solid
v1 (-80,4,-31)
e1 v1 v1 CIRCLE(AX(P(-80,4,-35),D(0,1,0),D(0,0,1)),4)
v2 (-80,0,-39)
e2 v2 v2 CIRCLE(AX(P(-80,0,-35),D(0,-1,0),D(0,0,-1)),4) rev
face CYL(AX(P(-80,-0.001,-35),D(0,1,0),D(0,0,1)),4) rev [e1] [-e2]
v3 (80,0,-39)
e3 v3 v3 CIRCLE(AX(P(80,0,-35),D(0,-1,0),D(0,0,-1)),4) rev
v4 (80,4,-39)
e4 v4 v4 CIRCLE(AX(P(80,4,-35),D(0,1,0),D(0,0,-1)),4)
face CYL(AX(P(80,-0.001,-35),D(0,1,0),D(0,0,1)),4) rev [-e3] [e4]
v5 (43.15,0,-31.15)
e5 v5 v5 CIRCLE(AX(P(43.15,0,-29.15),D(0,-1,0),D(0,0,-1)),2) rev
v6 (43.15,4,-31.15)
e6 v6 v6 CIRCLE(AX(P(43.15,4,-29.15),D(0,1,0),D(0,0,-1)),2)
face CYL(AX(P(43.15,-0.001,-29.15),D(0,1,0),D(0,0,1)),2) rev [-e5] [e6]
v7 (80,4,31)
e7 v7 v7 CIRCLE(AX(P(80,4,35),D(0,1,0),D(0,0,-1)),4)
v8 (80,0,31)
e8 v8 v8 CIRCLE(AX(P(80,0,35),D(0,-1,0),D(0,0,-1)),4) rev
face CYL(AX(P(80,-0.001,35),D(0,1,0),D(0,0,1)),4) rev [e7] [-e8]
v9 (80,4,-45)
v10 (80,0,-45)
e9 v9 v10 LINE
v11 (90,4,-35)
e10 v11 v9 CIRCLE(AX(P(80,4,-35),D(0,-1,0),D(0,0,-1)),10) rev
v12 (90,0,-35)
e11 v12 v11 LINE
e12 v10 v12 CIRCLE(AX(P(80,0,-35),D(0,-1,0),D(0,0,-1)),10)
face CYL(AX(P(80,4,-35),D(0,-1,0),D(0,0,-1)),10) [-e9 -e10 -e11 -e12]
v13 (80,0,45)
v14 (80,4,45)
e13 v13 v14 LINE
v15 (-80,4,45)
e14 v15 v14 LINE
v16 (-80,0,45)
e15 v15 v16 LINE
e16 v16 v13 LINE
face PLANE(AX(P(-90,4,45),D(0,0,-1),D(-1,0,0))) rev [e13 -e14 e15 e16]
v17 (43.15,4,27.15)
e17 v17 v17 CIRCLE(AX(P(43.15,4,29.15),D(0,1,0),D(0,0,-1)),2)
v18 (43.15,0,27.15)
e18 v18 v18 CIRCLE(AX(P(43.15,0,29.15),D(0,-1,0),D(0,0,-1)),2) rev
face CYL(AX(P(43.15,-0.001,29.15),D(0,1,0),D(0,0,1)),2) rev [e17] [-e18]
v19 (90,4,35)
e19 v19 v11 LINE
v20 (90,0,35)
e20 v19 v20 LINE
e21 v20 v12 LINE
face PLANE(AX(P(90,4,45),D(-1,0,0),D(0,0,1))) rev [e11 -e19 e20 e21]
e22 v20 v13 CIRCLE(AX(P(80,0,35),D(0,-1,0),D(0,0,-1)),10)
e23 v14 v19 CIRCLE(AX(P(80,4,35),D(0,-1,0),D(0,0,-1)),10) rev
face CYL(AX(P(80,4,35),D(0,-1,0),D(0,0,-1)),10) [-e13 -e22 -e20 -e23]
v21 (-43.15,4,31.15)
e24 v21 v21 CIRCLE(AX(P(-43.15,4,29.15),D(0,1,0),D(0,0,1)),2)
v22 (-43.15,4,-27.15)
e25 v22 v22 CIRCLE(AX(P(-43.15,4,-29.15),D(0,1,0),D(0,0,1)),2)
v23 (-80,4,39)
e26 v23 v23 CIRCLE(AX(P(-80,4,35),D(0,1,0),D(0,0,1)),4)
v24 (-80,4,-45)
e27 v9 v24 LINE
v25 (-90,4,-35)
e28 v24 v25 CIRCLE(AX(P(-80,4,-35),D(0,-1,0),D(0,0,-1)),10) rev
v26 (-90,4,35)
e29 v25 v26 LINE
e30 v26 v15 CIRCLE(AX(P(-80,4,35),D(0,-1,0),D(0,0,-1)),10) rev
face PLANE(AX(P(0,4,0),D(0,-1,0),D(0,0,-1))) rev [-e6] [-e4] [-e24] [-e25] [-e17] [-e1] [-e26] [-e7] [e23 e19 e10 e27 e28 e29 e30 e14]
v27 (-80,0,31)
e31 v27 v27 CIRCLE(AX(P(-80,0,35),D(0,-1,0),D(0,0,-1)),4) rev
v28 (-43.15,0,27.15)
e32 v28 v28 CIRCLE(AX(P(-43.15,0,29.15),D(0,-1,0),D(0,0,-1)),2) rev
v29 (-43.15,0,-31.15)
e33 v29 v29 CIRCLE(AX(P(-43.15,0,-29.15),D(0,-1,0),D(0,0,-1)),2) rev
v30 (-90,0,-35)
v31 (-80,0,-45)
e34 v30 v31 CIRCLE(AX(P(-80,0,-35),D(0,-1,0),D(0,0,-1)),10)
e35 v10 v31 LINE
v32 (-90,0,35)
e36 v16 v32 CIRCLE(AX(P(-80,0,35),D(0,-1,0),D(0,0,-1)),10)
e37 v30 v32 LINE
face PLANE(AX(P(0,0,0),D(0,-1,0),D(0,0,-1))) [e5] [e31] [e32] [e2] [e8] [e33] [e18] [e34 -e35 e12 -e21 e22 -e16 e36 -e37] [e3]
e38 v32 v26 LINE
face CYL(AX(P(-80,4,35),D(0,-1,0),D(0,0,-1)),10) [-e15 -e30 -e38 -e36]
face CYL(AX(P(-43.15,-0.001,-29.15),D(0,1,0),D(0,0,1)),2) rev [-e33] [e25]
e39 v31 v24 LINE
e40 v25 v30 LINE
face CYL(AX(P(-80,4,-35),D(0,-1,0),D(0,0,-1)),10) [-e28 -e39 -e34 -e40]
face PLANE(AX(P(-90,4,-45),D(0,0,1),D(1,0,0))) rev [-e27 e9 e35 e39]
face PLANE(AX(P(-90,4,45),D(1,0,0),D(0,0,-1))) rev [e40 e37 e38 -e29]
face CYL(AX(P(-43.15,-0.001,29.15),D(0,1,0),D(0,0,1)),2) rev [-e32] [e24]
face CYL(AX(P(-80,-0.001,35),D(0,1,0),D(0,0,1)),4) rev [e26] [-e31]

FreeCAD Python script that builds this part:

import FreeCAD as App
import Part
import Sketcher
from FreeCAD import Vector
Q = App.Units.Quantity


def edges_at(feature, points):
    """Names of the edges that pass closest to the given points."""
    edges = feature.Shape.Edges
    near = lambda p: min(range(len(edges)), key=lambda i: edges[i].distToShape(Part.Vertex(*p))[0])
    return sorted({f"Edge{near(p) + 1}" for p in points})

doc = App.newDocument("Part")
body = doc.addObject("PartDesign::Body", "Body")

sketch1 = body.newObject("Sketcher::SketchObject", "Sketch")
sketch1.AttachmentSupport = (doc.getObject("XZ_Plane"), [""])
sketch1.MapMode = "FlatFace"
sketch1.addGeometry([
    Part.LineSegment(Vector(-90, -45, 0), Vector(-90, 45, 0)),
    Part.LineSegment(Vector(-90, 45, 0), Vector(90, 45, 0)),
    Part.LineSegment(Vector(90, 45, 0), Vector(90, -45, 0)),
    Part.LineSegment(Vector(90, -45, 0), Vector(-90, -45, 0)),
], False)
sketch1.addConstraint([
    Sketcher.Constraint("Coincident", 0, 2, 1, 1),
    Sketcher.Constraint("Coincident", 1, 2, 2, 1),
    Sketcher.Constraint("Coincident", 2, 2, 3, 1),
    Sketcher.Constraint("Coincident", 3, 2, 0, 1),
    Sketcher.Constraint("Vertical", 0),
    Sketcher.Constraint("Horizontal", 1),
    Sketcher.Constraint("Vertical", 2),
    Sketcher.Constraint("Horizontal", 3),
    Sketcher.Constraint("Symmetric", 0, 2, 2, 2, -1, 1),
    Sketcher.Constraint("DistanceX", 1, 1, 1, 2, Q("180 mm")),
    Sketcher.Constraint("DistanceY", 0, 1, 0, 2, Q("90 mm")),
])
pad1 = body.newObject("PartDesign::Pad", "Pad")
pad1.Profile = sketch1
pad1.Length = 4
pad1.Reversed = True
doc.recompute()

fillet = body.newObject("PartDesign::Fillet", "Fillet")
fillet.Base = (pad1, edges_at(pad1, [
    (90, 2, 45),
    (-90, 2, 45),
    (-90, 2, -45),
    (90, 2, -45),
]))
fillet.Radius = 10

sketch2 = body.newObject("Sketcher::SketchObject", "Sketch001")
sketch2.AttachmentSupport = (doc.getObject("XZ_Plane"), [""])
sketch2.MapMode = "FlatFace"
sketch2.AttachmentOffset = App.Placement(Vector(0, 0, -4), App.Rotation())
sketch2.addGeometry(Part.Circle(Vector(-80, -35, 0), Vector(0, 0, 1), 4), False)
sketch2.addConstraint([
    Sketcher.Constraint("Diameter", 0, Q("8 mm")),
    Sketcher.Constraint("DistanceX", 0, 3, -1, 1, Q("80 mm")),
    Sketcher.Constraint("DistanceY", 0, 3, -1, 1, Q("35 mm")),
])
pocket1 = body.newObject("PartDesign::Pocket", "Pocket")
pocket1.Profile = sketch2
pocket1.Type = "UpToFirst"
pocket1.Reversed = True

sketch3 = body.newObject("Sketcher::SketchObject", "Sketch002")
sketch3.AttachmentSupport = (doc.getObject("XZ_Plane"), [""])
sketch3.MapMode = "FlatFace"
sketch3.AttachmentOffset = App.Placement(Vector(0, 0, -4), App.Rotation())
sketch3.addGeometry(Part.Circle(Vector(-80, 35, 0), Vector(0, 0, 1), 4), False)
sketch3.addConstraint([
    Sketcher.Constraint("Diameter", 0, Q("8 mm")),
    Sketcher.Constraint("DistanceX", 0, 3, -1, 1, Q("80 mm")),
    Sketcher.Constraint("DistanceY", -1, 1, 0, 3, Q("35 mm")),
])
pocket2 = body.newObject("PartDesign::Pocket", "Pocket001")
pocket2.Profile = sketch3
pocket2.Type = "UpToFirst"
pocket2.Reversed = True

sketch4 = body.newObject("Sketcher::SketchObject", "Sketch003")
sketch4.AttachmentSupport = (doc.getObject("XZ_Plane"), [""])
sketch4.MapMode = "FlatFace"
sketch4.AttachmentOffset = App.Placement(Vector(0, 0, -4), App.Rotation())
sketch4.addGeometry(Part.Circle(Vector(80, 35, 0), Vector(0, 0, 1), 4), False)
sketch4.addConstraint([
    Sketcher.Constraint("Diameter", 0, Q("8 mm")),
    Sketcher.Constraint("DistanceX", -1, 1, 0, 3, Q("80 mm")),
    Sketcher.Constraint("DistanceY", -1, 1, 0, 3, Q("35 mm")),
])
pocket3 = body.newObject("PartDesign::Pocket", "Pocket002")
pocket3.Profile = sketch4
pocket3.Type = "UpToFirst"
pocket3.Reversed = True

sketch5 = body.newObject("Sketcher::SketchObject", "Sketch004")
sketch5.AttachmentSupport = (doc.getObject("XZ_Plane"), [""])
sketch5.MapMode = "FlatFace"
sketch5.AttachmentOffset = App.Placement(Vector(0, 0, -4), App.Rotation())
sketch5.addGeometry(Part.Circle(Vector(80, -35, 0), Vector(0, 0, 1), 4), False)
sketch5.addConstraint([
    Sketcher.Constraint("Diameter", 0, Q("8 mm")),
    Sketcher.Constraint("DistanceX", -1, 1, 0, 3, Q("80 mm")),
    Sketcher.Constraint("DistanceY", 0, 3, -1, 1, Q("35 mm")),
])
pocket4 = body.newObject("PartDesign::Pocket", "Pocket003")
pocket4.Profile = sketch5
pocket4.Type = "UpToFirst"
pocket4.Reversed = True

sketch6 = body.newObject("Sketcher::SketchObject", "Sketch005")
sketch6.AttachmentSupport = (doc.getObject("XZ_Plane"), [""])
sketch6.MapMode = "FlatFace"
sketch6.AttachmentOffset = App.Placement(Vector(0, 0, -4), App.Rotation())
sketch6.addGeometry(Part.Circle(Vector(-43.1, -29.1, 0), Vector(0, 0, 1), 2), False)
sketch6.addConstraint([
    Sketcher.Constraint("Diameter", 0, Q("4 mm")),
    Sketcher.Constraint("DistanceX", 0, 3, -1, 1, Q("43.15 mm")),
    Sketcher.Constraint("DistanceY", 0, 3, -1, 1, Q("29.15 mm")),
])
pocket5 = body.newObject("PartDesign::Pocket", "Pocket004")
pocket5.Profile = sketch6
pocket5.Type = "UpToFirst"
pocket5.Reversed = True

sketch7 = body.newObject("Sketcher::SketchObject", "Sketch006")
sketch7.AttachmentSupport = (doc.getObject("XZ_Plane"), [""])
sketch7.MapMode = "FlatFace"
sketch7.AttachmentOffset = App.Placement(Vector(0, 0, -4), App.Rotation())
sketch7.addGeometry(Part.Circle(Vector(-43.1, 29.1, 0), Vector(0, 0, 1), 2), False)
sketch7.addConstraint([
    Sketcher.Constraint("Diameter", 0, Q("4 mm")),
    Sketcher.Constraint("DistanceX", 0, 3, -1, 1, Q("43.15 mm")),
    Sketcher.Constraint("DistanceY", -1, 1, 0, 3, Q("29.15 mm")),
])
pocket6 = body.newObject("PartDesign::Pocket", "Pocket005")
pocket6.Profile = sketch7
pocket6.Type = "UpToFirst"
pocket6.Reversed = True

sketch8 = body.newObject("Sketcher::SketchObject", "Sketch007")
sketch8.AttachmentSupport = (doc.getObject("XZ_Plane"), [""])
sketch8.MapMode = "FlatFace"
sketch8.AttachmentOffset = App.Placement(Vector(0, 0, -4), App.Rotation())
sketch8.addGeometry(Part.Circle(Vector(43.1, 29.1, 0), Vector(0, 0, 1), 2), False)
sketch8.addConstraint([
    Sketcher.Constraint("Diameter", 0, Q("4 mm")),
    Sketcher.Constraint("DistanceX", -1, 1, 0, 3, Q("43.15 mm")),
    Sketcher.Constraint("DistanceY", -1, 1, 0, 3, Q("29.15 mm")),
])
pocket7 = body.newObject("PartDesign::Pocket", "Pocket006")
pocket7.Profile = sketch8
pocket7.Type = "UpToFirst"
pocket7.Reversed = True

sketch9 = body.newObject("Sketcher::SketchObject", "Sketch008")
sketch9.AttachmentSupport = (doc.getObject("XZ_Plane"), [""])
sketch9.MapMode = "FlatFace"
sketch9.AttachmentOffset = App.Placement(Vector(0, 0, -4), App.Rotation())
sketch9.addGeometry(Part.Circle(Vector(43.1, -29.1, 0), Vector(0, 0, 1), 2), False)
sketch9.addConstraint([
    Sketcher.Constraint("Diameter", 0, Q("4 mm")),
    Sketcher.Constraint("DistanceX", -1, 1, 0, 3, Q("43.15 mm")),
    Sketcher.Constraint("DistanceY", 0, 3, -1, 1, Q("29.15 mm")),
])
pocket8 = body.newObject("PartDesign::Pocket", "Pocket007")
pocket8.Profile = sketch9
pocket8.Type = "UpToFirst"
pocket8.Reversed = True

doc.recompute()
